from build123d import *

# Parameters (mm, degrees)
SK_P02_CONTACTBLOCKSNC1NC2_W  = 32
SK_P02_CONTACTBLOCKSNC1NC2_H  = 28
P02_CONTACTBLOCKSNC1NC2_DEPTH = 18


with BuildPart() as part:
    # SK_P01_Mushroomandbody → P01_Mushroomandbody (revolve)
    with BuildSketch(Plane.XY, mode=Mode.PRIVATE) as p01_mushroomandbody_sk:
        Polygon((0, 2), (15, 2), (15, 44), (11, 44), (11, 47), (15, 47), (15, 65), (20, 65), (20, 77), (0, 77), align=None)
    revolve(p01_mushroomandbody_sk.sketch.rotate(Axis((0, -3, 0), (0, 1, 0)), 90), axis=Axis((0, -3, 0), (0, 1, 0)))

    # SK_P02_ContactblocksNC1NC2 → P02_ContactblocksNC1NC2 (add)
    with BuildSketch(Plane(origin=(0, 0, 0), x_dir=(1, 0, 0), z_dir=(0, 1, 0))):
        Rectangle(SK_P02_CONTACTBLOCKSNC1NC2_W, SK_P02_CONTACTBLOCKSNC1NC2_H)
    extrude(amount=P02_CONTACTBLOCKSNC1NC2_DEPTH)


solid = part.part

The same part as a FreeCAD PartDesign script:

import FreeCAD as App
import Part
import Sketcher
from FreeCAD import Vector


def add_polygon(sketch, points):
    """Adds a closed chain of lines whose ends are joined by coincident constraints."""
    first, n = sketch.GeometryCount, len(points)
    for a, b in zip(points, points[1:] + points[:1]):
        sketch.addGeometry(Part.LineSegment(App.Vector(*a, 0), App.Vector(*b, 0)), False)
    for i in range(n):
        sketch.addConstraint(Sketcher.Constraint("Coincident", first + i, 2, first + (i + 1) % n, 1))

doc = App.newDocument("Part")
body = doc.addObject("PartDesign::Body", "Body")

# Sketch on XY plane
sketch1 = doc.addObject("Sketcher::SketchObject", "Sketch")
body.addObject(sketch1)
sketch1.AttachmentSupport = (doc.XY_Plane, [""])
sketch1.MapMode = "FlatFace"
add_polygon(sketch1, [(0, 2), (15, 2), (15, 44), (11, 44), (11, 47), (15, 47), (15, 65), (20, 65), (20, 77), (0, 77)])  # lines 0-9
sketch1.addConstraint(Sketcher.Constraint("Horizontal", 0))
sketch1.addConstraint(Sketcher.Constraint("Vertical", 1))
sketch1.addConstraint(Sketcher.Constraint("Horizontal", 2))
sketch1.addConstraint(Sketcher.Constraint("Vertical", 3))
sketch1.addConstraint(Sketcher.Constraint("Horizontal", 4))
sketch1.addConstraint(Sketcher.Constraint("Vertical", 5))
sketch1.addConstraint(Sketcher.Constraint("Horizontal", 6))
sketch1.addConstraint(Sketcher.Constraint("Vertical", 7))
sketch1.addConstraint(Sketcher.Constraint("Horizontal", 8))
sketch1.addConstraint(Sketcher.Constraint("Vertical", 9))
sketch1.addConstraint(Sketcher.Constraint("PointOnObject", 8, 2, -2))
sketch1.addConstraint(Sketcher.Constraint("Vertical", 1, 2, 4, 2))
sketch1.addConstraint(Sketcher.Constraint("DistanceX", 0, 1, 0, 2, 15.0))
sketch1.addConstraint(Sketcher.Constraint("DistanceX", 2, 2, 2, 1, 4.0))
sketch1.addConstraint(Sketcher.Constraint("DistanceX", 6, 1, 6, 2, 5.0))
sketch1.addConstraint(Sketcher.Constraint("DistanceY", 1, 1, 1, 2, 42.0))
sketch1.addConstraint(Sketcher.Constraint("DistanceY", 3, 1, 3, 2, 3.0))
sketch1.addConstraint(Sketcher.Constraint("DistanceY", 5, 1, 5, 2, 18.0))
sketch1.addConstraint(Sketcher.Constraint("DistanceY", 7, 1, 7, 2, 12.0))
sketch1.addConstraint(Sketcher.Constraint("DistanceY", -1, 1, 0, 2, 2.0))
revolution = doc.addObject("PartDesign::Revolution", "Revolution")
body.addObject(revolution)
revolution.Profile = sketch1
revolution.ReferenceAxis = (sketch1, ["V_Axis"])
revolution.Angle = 360

# Sketch on XZ plane
sketch2 = doc.addObject("Sketcher::SketchObject", "Sketch001")
body.addObject(sketch2)
sketch2.AttachmentSupport = (doc.XZ_Plane, [""])
sketch2.MapMode = "FlatFace"
add_polygon(sketch2, [(-16, -14), (-16, 14), (16, 14), (16, -14)])  # lines 0-3
sketch2.addConstraint(Sketcher.Constraint("Vertical", 0))
sketch2.addConstraint(Sketcher.Constraint("Horizontal", 1))
sketch2.addConstraint(Sketcher.Constraint("Vertical", 2))
sketch2.addConstraint(Sketcher.Constraint("Horizontal", 3))
sketch2.addConstraint(Sketcher.Constraint("Symmetric", 0, 2, 2, 2, -1, 1))
sketch2.addConstraint(Sketcher.Constraint("DistanceX", 1, 1, 1, 2, 32.0))
sketch2.addConstraint(Sketcher.Constraint("DistanceY", 0, 1, 0, 2, 28.0))
pad1 = doc.addObject("PartDesign::Pad", "Pad")
body.addObject(pad1)
pad1.Profile = sketch2
pad1.Length = 18
pad1.Reversed = True

doc.recompute()
